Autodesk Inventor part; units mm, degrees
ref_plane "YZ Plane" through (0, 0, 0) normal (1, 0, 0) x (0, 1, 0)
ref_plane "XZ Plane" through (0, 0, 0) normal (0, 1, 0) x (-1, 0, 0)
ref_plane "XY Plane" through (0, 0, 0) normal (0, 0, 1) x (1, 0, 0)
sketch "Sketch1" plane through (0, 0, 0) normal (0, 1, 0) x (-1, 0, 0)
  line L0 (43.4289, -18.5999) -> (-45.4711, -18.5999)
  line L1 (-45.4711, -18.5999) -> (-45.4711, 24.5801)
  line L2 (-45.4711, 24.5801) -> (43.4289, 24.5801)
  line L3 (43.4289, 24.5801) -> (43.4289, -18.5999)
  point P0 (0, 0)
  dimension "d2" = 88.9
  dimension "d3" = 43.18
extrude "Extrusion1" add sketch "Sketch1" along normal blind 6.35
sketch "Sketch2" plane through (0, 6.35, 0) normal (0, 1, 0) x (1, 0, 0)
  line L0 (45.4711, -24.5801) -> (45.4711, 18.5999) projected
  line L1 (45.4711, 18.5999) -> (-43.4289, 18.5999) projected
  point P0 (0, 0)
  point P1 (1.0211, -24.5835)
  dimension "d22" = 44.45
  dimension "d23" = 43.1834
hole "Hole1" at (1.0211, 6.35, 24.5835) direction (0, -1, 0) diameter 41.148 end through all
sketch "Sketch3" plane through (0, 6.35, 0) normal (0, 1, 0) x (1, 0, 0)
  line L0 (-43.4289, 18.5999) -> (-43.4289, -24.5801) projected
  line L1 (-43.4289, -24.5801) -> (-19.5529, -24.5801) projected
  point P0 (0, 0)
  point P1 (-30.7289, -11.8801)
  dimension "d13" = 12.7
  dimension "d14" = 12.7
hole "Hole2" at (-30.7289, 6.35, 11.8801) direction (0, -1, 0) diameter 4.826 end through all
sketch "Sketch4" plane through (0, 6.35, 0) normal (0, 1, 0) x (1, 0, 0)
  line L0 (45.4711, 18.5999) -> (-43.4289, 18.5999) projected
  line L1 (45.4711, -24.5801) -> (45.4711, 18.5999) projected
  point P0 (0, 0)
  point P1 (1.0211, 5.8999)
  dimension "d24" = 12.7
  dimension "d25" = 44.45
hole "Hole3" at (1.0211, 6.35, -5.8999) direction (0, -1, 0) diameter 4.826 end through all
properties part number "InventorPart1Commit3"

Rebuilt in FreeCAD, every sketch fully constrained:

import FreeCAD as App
import Part
import Sketcher
from FreeCAD import Vector
Q = App.Units.Quantity

doc = App.newDocument("Part")
body = doc.addObject("PartDesign::Body", "Body")

sketch1 = body.newObject("Sketcher::SketchObject", "Sketch")
sketch1.AttachmentSupport = (doc.getObject("XZ_Plane"), [""])
sketch1.MapMode = "FlatFace"
sketch1.addGeometry(Part.LineSegment(Vector(45.4711, -18.5999, 0), Vector(-43.4289, -18.5999, 0)), False)
sketch1.addGeometry(Part.LineSegment(Vector(-43.4289, -18.5999, 0), Vector(-43.4289, 24.5801, 0)), False)
sketch1.addGeometry(Part.LineSegment(Vector(-43.4289, 24.5801, 0), Vector(45.4711, 24.5801, 0)), False)
sketch1.addGeometry(Part.LineSegment(Vector(45.4711, 24.5801, 0), Vector(45.4711, -18.5999, 0)), False)
sketch1.addConstraint(Sketcher.Constraint("Coincident", 0, 2, 1, 1))
sketch1.addConstraint(Sketcher.Constraint("Coincident", 1, 2, 2, 1))
sketch1.addConstraint(Sketcher.Constraint("Coincident", 2, 2, 3, 1))
sketch1.addConstraint(Sketcher.Constraint("Coincident", 3, 2, 0, 1))
sketch1.addConstraint(Sketcher.Constraint("Horizontal", 0))
sketch1.addConstraint(Sketcher.Constraint("Vertical", 1))
sketch1.addConstraint(Sketcher.Constraint("Horizontal", 2))
sketch1.addConstraint(Sketcher.Constraint("Vertical", 3))
sketch1.addConstraint(Sketcher.Constraint("DistanceX", 0, 2, 0, 1, Q("3.5 in")))
sketch1.addConstraint(Sketcher.Constraint("DistanceY", 1, 1, 1, 2, Q("1.7 in")))
sketch1.addConstraint(Sketcher.Constraint("DistanceX", 0, 2, -1, 1, Q("1.7098 in")))
sketch1.addConstraint(Sketcher.Constraint("DistanceY", 0, 2, -1, 1, Q("18.6 mm")))
pad1 = body.newObject("PartDesign::Pad", "Pad")
pad1.Profile = sketch1
pad1.Length = Q("0.25 in")
pad1.Reversed = True

sketch2 = body.newObject("Sketcher::SketchObject", "Sketch001")
sketch2.AttachmentSupport = (doc.getObject("XZ_Plane"), [""])
sketch2.MapMode = "FlatFace"
sketch2.AttachmentOffset = App.Placement(Vector(0, 0, -0.25 * 25.4), App.Rotation())
sketch2.addGeometry(Part.Circle(Vector(1.0211, 24.5835, 0), Vector(0, 0, 1), 20.574), False)
sketch2.addConstraint(Sketcher.Constraint("Diameter", 0, Q("1.62 in")))
sketch2.addConstraint(Sketcher.Constraint("DistanceX", -1, 1, 0, 3, Q("0.0402 in")))
sketch2.addConstraint(Sketcher.Constraint("DistanceY", -1, 1, 0, 3, Q("24.5835 mm")))
doc.recompute()
hole = body.newObject("PartDesign::Hole", "Hole")
hole.Profile = sketch2
hole.ThreadType = "None"
hole.Diameter = Q("1.62 in")
hole.DepthType = "ThroughAll"
hole.Reversed = True

sketch3 = body.newObject("Sketcher::SketchObject", "Sketch002")
sketch3.AttachmentSupport = (doc.getObject("XZ_Plane"), [""])
sketch3.MapMode = "FlatFace"
sketch3.AttachmentOffset = App.Placement(Vector(0, 0, -0.25 * 25.4), App.Rotation())
sketch3.addGeometry(Part.Circle(Vector(-30.7289, 11.8801, 0), Vector(0, 0, 1), 2.413), False)
sketch3.addConstraint(Sketcher.Constraint("Diameter", 0, Q("0.19 in")))
sketch3.addConstraint(Sketcher.Constraint("DistanceX", 0, 3, -1, 1, Q("1.2098 in")))
sketch3.addConstraint(Sketcher.Constraint("DistanceY", -1, 1, 0, 3, Q("11.88 mm")))
doc.recompute()
hole2 = body.newObject("PartDesign::Hole", "Hole001")
hole2.Profile = sketch3
hole2.ThreadType = "None"
hole2.Diameter = Q("0.19 in")
hole2.DepthType = "ThroughAll"
hole2.Reversed = True

sketch4 = body.newObject("Sketcher::SketchObject", "Sketch003")
sketch4.AttachmentSupport = (doc.getObject("XZ_Plane"), [""])
sketch4.MapMode = "FlatFace"
sketch4.AttachmentOffset = App.Placement(Vector(0, 0, -0.25 * 25.4), App.Rotation())
sketch4.addGeometry(Part.Circle(Vector(1.0211, -5.8999, 0), Vector(0, 0, 1), 2.413), False)
sketch4.addConstraint(Sketcher.Constraint("Diameter", 0, Q("0.19 in")))
sketch4.addConstraint(Sketcher.Constraint("DistanceX", -1, 1, 0, 3, Q("0.0402 in")))
sketch4.addConstraint(Sketcher.Constraint("DistanceY", 0, 3, -1, 1, Q("5.9 mm")))
doc.recompute()
hole3 = body.newObject("PartDesign::Hole", "Hole002")
hole3.Profile = sketch4
hole3.ThreadType = "None"
hole3.Diameter = Q("0.19 in")
hole3.DepthType = "ThroughAll"
hole3.Reversed = True

doc.recompute()
